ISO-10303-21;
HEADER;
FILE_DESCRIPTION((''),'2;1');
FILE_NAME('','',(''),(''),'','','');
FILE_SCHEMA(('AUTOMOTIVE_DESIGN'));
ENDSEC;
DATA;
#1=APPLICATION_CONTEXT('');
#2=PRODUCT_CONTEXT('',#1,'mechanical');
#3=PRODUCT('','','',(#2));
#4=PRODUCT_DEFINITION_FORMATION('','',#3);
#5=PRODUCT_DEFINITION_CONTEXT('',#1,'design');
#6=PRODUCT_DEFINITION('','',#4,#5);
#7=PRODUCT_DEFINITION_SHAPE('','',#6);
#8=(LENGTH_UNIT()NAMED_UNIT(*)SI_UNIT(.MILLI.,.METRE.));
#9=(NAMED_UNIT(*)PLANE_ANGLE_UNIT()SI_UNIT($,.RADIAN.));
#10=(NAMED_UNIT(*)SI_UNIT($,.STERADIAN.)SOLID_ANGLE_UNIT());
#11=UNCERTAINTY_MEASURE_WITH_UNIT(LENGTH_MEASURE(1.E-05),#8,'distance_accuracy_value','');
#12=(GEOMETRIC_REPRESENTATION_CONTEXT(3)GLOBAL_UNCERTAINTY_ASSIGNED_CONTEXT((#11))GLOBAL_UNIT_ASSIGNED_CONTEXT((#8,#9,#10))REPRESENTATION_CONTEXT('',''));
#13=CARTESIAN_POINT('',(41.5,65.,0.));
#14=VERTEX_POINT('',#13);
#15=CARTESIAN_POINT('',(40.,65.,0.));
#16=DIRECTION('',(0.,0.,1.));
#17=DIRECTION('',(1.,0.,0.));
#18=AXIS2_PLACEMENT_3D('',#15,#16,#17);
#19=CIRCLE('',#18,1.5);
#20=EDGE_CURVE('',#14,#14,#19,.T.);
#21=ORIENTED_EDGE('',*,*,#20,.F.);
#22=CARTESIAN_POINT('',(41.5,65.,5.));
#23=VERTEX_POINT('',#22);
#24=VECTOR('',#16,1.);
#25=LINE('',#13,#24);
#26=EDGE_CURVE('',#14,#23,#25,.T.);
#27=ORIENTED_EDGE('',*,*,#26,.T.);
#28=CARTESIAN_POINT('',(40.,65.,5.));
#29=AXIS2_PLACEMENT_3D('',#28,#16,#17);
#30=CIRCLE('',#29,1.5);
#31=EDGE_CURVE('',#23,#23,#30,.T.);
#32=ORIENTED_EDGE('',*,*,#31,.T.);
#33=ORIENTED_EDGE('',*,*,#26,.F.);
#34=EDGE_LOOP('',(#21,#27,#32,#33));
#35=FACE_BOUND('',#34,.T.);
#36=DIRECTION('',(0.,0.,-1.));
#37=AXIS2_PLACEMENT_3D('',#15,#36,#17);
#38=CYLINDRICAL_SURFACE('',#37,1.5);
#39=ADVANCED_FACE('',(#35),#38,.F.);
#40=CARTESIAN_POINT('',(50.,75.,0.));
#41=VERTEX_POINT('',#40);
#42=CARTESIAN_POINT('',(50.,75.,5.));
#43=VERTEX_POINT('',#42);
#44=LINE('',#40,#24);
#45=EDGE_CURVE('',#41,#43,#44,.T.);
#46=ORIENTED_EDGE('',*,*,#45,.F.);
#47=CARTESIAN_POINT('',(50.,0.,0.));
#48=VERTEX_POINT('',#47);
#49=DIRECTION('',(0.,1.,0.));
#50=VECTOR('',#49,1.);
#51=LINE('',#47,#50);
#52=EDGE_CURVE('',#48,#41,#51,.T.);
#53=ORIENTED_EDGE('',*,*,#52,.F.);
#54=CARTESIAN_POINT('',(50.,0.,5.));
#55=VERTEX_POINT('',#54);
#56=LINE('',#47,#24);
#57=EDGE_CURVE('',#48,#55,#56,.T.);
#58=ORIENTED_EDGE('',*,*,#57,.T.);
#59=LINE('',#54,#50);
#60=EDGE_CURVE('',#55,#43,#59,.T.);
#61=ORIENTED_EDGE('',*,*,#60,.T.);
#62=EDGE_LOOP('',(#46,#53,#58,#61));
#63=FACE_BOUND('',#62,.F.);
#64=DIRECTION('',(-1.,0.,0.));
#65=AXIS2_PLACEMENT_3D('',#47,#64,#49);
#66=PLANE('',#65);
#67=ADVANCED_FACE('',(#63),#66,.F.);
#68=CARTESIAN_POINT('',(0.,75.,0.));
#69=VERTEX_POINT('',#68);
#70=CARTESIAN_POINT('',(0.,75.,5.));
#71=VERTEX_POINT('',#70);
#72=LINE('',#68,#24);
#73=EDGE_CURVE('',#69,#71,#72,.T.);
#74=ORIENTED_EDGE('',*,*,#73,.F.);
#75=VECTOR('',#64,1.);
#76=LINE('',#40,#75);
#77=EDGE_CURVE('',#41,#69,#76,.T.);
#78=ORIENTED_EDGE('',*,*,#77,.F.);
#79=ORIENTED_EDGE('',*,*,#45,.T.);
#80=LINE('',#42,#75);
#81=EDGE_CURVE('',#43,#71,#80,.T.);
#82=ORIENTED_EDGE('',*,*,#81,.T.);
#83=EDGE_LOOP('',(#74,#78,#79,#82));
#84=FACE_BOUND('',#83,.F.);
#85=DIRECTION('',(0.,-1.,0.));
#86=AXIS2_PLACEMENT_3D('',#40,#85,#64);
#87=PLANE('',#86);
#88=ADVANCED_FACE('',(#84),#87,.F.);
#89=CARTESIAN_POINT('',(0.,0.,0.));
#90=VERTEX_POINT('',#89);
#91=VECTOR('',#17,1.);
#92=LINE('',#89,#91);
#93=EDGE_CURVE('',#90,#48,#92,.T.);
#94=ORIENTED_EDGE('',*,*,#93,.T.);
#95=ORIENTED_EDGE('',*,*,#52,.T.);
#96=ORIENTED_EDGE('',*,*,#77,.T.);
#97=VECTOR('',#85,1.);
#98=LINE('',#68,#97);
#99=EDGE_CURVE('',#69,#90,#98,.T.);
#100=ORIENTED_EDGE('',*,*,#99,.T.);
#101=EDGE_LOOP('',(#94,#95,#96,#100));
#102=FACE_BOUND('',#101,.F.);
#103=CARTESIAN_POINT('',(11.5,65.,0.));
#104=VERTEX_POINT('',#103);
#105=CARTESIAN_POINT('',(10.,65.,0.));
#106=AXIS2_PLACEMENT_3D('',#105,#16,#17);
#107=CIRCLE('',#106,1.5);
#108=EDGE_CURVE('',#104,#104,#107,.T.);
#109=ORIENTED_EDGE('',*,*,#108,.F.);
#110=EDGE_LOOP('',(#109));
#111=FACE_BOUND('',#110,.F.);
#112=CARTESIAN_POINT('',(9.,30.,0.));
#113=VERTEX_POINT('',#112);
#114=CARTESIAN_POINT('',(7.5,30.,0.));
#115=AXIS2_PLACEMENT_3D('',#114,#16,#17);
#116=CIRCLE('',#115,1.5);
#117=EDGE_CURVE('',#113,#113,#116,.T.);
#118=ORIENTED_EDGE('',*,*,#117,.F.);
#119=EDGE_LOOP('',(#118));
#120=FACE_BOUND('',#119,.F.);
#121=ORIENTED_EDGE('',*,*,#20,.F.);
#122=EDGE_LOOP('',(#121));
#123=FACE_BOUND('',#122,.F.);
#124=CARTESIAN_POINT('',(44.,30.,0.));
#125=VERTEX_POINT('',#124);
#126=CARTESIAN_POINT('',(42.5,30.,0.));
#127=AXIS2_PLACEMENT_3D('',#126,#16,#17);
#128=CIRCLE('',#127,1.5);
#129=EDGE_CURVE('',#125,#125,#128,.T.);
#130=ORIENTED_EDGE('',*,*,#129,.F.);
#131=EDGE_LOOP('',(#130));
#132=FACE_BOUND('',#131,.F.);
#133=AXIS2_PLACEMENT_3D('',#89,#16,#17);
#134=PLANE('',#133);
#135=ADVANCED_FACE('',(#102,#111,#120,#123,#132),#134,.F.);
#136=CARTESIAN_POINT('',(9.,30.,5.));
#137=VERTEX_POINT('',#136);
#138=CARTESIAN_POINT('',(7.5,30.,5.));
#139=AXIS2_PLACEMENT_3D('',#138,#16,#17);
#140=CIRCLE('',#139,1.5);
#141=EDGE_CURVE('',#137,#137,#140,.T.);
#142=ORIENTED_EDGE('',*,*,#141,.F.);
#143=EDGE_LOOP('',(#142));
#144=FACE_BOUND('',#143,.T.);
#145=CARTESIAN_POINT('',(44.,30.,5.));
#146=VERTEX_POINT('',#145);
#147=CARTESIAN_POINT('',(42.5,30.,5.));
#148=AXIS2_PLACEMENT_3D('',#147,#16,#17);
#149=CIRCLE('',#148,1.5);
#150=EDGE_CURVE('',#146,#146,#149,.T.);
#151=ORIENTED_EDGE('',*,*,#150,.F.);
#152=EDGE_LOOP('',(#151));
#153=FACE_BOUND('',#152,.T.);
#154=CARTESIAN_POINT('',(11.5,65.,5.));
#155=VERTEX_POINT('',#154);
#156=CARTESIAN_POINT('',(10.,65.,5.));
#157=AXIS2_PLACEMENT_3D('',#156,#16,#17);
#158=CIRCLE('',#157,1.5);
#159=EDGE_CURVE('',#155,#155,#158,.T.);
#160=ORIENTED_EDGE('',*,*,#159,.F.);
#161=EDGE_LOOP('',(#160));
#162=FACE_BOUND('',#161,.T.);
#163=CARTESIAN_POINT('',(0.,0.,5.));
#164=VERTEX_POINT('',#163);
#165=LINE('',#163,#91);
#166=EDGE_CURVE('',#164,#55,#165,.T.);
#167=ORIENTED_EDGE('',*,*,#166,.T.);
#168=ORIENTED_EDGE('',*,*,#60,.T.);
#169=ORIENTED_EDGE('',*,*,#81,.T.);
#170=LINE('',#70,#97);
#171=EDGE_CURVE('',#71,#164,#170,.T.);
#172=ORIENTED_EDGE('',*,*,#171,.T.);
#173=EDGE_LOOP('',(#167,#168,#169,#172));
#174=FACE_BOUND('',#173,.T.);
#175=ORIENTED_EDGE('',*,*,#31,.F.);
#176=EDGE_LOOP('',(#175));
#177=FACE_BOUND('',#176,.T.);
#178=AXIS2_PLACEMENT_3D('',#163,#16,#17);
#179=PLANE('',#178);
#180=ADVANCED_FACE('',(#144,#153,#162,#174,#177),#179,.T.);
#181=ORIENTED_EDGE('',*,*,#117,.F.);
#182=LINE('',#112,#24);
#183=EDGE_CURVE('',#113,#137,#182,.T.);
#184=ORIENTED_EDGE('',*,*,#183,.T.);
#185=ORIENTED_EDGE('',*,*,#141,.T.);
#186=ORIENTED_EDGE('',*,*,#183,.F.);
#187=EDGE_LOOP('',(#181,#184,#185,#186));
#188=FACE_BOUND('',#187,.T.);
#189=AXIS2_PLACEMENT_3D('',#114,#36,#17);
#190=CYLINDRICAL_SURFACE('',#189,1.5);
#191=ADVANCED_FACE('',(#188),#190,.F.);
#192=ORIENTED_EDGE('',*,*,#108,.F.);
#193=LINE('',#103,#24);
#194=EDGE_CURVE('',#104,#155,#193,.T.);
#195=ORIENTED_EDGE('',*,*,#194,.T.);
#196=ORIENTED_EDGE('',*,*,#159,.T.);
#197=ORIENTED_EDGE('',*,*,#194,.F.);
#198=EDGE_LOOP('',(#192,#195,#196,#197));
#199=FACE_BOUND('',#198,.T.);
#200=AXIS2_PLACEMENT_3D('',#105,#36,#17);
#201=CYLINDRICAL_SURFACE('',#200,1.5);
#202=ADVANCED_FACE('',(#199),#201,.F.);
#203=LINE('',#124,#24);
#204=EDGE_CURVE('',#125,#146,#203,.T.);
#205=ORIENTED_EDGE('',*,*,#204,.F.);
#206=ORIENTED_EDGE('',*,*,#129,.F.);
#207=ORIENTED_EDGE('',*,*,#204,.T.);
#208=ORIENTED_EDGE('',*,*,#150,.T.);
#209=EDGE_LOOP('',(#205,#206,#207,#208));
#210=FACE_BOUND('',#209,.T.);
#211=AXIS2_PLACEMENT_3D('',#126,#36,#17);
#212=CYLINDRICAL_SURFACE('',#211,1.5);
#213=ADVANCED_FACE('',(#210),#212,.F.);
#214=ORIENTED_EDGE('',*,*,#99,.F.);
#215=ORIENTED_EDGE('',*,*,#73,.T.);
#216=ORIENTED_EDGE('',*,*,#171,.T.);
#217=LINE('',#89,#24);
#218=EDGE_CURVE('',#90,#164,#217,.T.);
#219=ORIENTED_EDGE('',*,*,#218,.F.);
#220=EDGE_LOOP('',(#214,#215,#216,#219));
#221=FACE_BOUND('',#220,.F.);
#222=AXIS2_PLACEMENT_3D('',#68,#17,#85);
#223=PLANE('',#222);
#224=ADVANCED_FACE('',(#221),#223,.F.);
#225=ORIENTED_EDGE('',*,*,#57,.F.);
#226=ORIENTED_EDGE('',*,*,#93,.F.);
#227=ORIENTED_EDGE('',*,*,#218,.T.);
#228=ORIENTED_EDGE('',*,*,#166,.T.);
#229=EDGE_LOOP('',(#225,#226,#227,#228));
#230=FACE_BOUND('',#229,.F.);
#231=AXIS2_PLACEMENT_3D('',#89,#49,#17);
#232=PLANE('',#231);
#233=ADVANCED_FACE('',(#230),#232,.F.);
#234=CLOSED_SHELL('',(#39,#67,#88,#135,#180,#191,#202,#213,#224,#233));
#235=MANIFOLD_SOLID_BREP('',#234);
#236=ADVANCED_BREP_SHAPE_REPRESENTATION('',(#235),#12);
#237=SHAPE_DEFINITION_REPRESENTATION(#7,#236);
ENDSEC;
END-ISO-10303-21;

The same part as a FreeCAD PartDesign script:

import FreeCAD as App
import Part
import Sketcher

doc = App.newDocument("Part")
body = doc.addObject("PartDesign::Body", "Body")

# Sketch on XY plane
sketch1 = body.newObject("Sketcher::SketchObject", "Sketch")
sketch1.AttachmentSupport = (doc.getObject("XY_Plane"), [""])
sketch1.MapMode = "FlatFace"
sketch1.addGeometry([
    Part.LineSegment(App.Vector(0, 75, 0), App.Vector(0, 0, 0)),  # 0
    Part.LineSegment(App.Vector(0, 0, 0), App.Vector(50, 0, 0)),  # 1
    Part.LineSegment(App.Vector(50, 0, 0), App.Vector(50, 75, 0)),  # 2
    Part.LineSegment(App.Vector(50, 75, 0), App.Vector(0, 75, 0)),  # 3
    Part.Circle(App.Vector(7.5, 30, 0), App.Vector(0, 0, 1), 1.5),  # 4
    Part.Circle(App.Vector(42.5, 30, 0), App.Vector(0, 0, 1), 1.5),  # 5
    Part.Circle(App.Vector(10, 65, 0), App.Vector(0, 0, 1), 1.5),  # 6
    Part.Circle(App.Vector(40, 65, 0), App.Vector(0, 0, 1), 1.5),  # 7
], False)
sketch1.addConstraint([
    Sketcher.Constraint("Coincident", 0, 2, 1, 1),
    Sketcher.Constraint("Coincident", 1, 2, 2, 1),
    Sketcher.Constraint("Coincident", 2, 2, 3, 1),
    Sketcher.Constraint("Coincident", 3, 2, 0, 1),
    Sketcher.Constraint("Vertical", 0),
    Sketcher.Constraint("Horizontal", 1),
    Sketcher.Constraint("Vertical", 2),
    Sketcher.Constraint("Horizontal", 3),
    Sketcher.Constraint("Coincident", 0, 2, -1, 1),
    Sketcher.Constraint("Equal", 4, 5),
    Sketcher.Constraint("Equal", 5, 6),
    Sketcher.Constraint("Equal", 6, 7),
    Sketcher.Constraint("Horizontal", 4, 3, 5, 3),
    Sketcher.Constraint("Horizontal", 6, 3, 7, 3),
    Sketcher.Constraint("Diameter", 4, 3.0),
    Sketcher.Constraint("DistanceX", 1, 1, 1, 2, 50.0),
    Sketcher.Constraint("DistanceY", 0, 2, 0, 1, 75.0),
    Sketcher.Constraint("DistanceY", -1, 1, 4, 3, 30.0),
    Sketcher.Constraint("DistanceX", -1, 1, 6, 3, 10.0),
    Sketcher.Constraint("DistanceX", 4, 3, 5, 3, 35.0),
    Sketcher.Constraint("DistanceY", 4, 3, 6, 3, 35.0),
    Sketcher.Constraint("DistanceX", 6, 3, 7, 3, 30.0),
    Sketcher.Constraint("DistanceX", -1, 1, 4, 3, 7.5),
])
pad1 = body.newObject("PartDesign::Pad", "Pad")
pad1.Profile = sketch1
pad1.Length = 5

doc.recompute()
